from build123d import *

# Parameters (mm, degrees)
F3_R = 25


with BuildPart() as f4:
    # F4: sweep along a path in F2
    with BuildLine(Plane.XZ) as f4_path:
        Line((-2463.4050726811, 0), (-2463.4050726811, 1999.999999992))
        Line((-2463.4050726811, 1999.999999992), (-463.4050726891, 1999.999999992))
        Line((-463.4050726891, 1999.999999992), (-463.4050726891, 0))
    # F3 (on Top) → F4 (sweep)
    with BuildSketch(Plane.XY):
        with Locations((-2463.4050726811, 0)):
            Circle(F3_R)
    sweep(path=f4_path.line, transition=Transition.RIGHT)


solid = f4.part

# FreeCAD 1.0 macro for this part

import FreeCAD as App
import Part
import Sketcher
from FreeCAD import Vector

doc = App.newDocument("Part")
body = doc.addObject("PartDesign::Body", "Body")

sketch1 = body.newObject("Sketcher::SketchObject", "Sketch")
sketch1.AttachmentSupport = (doc.getObject("XY_Plane"), [""])
sketch1.MapMode = "FlatFace"
sketch1.addGeometry(Part.Circle(Vector(-2463, 0, 0), Vector(0, 0, 1), 25), False)
sketch1.addConstraint([
    Sketcher.Constraint("PointOnObject", 0, 3, -1),
    Sketcher.Constraint("Diameter", 0, 50.0),
    Sketcher.Constraint("DistanceX", 0, 3, -1, 1, 2463.405073),
])

sketch2 = body.newObject("Sketcher::SketchObject", "Sketch001")
sketch2.AttachmentSupport = (doc.getObject("XZ_Plane"), [""])
sketch2.MapMode = "FlatFace"
sketch2.addGeometry([
    Part.LineSegment(Vector(-2463, 0, 0), Vector(-2463, 2000, 0)),
    Part.LineSegment(Vector(-2463, 2000, 0), Vector(-463, 2000, 0)),
    Part.LineSegment(Vector(-463, 2000, 0), Vector(-463, 0, 0)),
], False)
sketch2.addConstraint([
    Sketcher.Constraint("Coincident", 0, 2, 1, 1),
    Sketcher.Constraint("Coincident", 1, 2, 2, 1),
    Sketcher.Constraint("Vertical", 0),
    Sketcher.Constraint("Horizontal", 1),
    Sketcher.Constraint("Vertical", 2),
    Sketcher.Constraint("PointOnObject", 0, 1, -1),
    Sketcher.Constraint("PointOnObject", 2, 2, -1),
    Sketcher.Constraint("Equal", 1, 0),
    Sketcher.Constraint("DistanceX", 1, 1, 1, 2, 2000.0),
    Sketcher.Constraint("DistanceX", 0, 1, -1, 1, 2463.405073),
])
doc.recompute()

additivepipe = body.newObject("PartDesign::AdditivePipe", "AdditivePipe")
additivepipe.Profile = sketch1
additivepipe.Spine = (sketch2, ["Edge1", "Edge2", "Edge3"])
additivepipe.Transition = "Right corner"

doc.recompute()
